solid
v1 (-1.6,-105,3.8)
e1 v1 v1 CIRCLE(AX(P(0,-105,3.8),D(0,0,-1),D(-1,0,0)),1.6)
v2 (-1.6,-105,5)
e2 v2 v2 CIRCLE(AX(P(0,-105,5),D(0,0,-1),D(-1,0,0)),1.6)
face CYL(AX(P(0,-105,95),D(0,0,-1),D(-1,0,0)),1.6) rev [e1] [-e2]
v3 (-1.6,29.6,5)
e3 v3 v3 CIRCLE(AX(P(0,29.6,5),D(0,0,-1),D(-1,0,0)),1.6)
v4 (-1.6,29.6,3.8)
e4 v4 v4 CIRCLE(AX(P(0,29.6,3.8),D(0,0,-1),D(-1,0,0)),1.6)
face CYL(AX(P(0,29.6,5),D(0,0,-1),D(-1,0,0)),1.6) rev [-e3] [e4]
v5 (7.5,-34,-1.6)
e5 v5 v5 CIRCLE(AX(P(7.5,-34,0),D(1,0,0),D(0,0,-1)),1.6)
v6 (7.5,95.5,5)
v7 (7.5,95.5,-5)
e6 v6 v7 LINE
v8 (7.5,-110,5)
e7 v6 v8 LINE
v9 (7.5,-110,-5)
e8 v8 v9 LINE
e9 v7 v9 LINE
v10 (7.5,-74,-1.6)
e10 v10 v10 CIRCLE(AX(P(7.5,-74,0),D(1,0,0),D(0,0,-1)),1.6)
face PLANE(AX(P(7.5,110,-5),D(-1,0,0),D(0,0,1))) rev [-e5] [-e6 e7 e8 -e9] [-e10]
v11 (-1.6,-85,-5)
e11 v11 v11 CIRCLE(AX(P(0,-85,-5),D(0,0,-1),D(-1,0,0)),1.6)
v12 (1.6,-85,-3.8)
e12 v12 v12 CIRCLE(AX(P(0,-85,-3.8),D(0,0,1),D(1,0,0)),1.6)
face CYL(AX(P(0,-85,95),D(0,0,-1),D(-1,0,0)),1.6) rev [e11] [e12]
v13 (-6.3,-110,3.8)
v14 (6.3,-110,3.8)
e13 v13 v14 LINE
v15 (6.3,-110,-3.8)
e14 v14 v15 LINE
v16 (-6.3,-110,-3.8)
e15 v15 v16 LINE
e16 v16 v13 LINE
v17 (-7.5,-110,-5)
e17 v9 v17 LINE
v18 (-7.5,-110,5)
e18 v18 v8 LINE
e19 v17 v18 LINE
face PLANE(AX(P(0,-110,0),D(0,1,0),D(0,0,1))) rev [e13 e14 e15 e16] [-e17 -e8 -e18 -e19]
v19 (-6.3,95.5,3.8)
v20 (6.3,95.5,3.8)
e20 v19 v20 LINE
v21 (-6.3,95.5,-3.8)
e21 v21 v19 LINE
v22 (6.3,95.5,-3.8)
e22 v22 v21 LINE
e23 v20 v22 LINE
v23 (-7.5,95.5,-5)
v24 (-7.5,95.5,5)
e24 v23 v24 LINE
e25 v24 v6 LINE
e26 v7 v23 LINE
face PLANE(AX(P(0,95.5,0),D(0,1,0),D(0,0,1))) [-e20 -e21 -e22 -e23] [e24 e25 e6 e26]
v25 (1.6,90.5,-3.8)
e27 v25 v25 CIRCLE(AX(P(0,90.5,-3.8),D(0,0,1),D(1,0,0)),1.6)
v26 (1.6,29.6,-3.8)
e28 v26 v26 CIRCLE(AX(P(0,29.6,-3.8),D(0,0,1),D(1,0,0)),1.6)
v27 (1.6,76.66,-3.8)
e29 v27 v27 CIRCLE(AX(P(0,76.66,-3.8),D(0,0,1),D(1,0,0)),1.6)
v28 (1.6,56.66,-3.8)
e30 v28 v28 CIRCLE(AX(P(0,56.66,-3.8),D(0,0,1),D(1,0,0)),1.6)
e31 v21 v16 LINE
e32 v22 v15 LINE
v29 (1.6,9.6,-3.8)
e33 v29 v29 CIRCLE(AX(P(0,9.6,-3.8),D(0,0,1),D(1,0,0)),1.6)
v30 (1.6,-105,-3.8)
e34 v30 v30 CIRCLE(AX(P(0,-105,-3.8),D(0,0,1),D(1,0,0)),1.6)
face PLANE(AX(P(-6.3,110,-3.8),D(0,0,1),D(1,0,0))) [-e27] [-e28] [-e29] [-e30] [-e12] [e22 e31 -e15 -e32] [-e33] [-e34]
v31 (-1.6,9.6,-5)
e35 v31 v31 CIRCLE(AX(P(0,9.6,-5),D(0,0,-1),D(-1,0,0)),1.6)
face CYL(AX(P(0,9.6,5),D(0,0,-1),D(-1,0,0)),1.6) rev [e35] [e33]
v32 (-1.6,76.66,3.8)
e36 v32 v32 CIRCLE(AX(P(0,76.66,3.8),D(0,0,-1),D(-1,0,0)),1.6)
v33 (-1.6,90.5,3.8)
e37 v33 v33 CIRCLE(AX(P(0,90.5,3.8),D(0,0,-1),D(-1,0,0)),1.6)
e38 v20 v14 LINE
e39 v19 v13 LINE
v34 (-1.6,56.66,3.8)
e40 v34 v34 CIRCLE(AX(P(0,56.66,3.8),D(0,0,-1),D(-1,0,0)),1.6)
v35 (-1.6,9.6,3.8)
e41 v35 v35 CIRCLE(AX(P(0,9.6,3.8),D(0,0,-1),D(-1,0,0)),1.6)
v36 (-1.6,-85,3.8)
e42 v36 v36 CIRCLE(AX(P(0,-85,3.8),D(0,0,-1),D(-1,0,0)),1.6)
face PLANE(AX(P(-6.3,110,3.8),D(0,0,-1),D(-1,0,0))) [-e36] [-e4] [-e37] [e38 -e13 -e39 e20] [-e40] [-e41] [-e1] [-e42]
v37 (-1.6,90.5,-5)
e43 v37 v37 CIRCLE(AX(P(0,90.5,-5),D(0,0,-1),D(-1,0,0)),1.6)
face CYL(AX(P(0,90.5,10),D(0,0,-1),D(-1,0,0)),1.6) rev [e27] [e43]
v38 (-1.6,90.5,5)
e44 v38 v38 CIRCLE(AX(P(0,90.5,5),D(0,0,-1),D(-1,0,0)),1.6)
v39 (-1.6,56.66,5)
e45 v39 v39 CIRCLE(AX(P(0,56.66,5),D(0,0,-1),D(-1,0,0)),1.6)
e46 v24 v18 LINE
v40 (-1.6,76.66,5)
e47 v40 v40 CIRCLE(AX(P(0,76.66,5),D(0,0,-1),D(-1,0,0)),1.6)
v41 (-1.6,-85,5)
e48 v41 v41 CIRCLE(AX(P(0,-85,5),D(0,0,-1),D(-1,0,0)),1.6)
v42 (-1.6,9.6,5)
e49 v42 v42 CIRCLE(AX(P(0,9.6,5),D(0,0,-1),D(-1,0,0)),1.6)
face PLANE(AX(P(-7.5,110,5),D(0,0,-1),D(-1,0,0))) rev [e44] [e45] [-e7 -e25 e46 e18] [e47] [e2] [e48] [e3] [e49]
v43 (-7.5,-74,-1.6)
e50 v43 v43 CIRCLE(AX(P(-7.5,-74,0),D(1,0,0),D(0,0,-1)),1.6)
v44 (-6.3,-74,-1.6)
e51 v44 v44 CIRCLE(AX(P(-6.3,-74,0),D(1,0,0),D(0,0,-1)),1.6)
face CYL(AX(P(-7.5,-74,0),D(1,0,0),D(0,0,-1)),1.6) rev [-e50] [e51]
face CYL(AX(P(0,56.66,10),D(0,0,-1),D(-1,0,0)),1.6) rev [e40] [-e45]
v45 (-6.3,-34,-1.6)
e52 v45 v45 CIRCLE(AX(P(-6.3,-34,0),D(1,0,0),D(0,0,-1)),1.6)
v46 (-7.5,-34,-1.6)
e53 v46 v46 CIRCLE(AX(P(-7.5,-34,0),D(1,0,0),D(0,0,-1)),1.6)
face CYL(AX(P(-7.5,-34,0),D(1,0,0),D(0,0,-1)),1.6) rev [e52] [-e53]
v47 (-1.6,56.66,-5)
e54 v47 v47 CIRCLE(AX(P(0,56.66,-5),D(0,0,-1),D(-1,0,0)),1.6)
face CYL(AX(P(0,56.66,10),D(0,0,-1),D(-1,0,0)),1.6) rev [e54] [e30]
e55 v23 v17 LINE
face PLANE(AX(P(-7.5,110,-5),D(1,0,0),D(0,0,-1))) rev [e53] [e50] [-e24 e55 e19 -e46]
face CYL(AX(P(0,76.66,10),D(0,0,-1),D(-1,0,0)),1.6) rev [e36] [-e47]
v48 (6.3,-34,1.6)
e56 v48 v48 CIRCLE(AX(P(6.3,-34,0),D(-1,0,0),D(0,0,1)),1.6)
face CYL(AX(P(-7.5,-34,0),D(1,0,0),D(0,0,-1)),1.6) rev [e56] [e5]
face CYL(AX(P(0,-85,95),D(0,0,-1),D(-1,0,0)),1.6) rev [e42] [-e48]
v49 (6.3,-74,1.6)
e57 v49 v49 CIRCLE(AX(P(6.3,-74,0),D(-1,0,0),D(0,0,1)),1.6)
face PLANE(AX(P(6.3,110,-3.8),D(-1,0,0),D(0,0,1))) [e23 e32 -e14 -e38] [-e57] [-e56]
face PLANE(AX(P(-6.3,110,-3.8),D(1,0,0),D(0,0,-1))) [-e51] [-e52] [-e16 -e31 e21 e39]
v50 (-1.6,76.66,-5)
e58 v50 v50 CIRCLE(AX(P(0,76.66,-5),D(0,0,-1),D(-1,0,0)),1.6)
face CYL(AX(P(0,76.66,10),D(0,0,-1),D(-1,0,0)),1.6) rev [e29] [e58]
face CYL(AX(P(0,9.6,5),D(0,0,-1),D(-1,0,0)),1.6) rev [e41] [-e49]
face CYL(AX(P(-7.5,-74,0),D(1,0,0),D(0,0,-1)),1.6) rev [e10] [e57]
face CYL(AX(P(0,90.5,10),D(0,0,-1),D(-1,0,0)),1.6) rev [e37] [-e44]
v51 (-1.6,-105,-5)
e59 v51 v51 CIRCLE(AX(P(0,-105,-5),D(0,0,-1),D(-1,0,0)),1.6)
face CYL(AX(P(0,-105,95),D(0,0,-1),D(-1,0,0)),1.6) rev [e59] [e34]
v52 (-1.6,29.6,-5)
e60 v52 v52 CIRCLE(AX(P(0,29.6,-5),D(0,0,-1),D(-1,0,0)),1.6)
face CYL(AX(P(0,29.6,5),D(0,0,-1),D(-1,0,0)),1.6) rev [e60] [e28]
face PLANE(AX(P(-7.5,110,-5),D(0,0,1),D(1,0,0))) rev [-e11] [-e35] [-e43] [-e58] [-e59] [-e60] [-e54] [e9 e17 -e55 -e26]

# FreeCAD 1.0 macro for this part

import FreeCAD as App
import Part
import Sketcher
from FreeCAD import Vector

doc = App.newDocument("Part")
body = doc.addObject("PartDesign::Body", "Body")

sketch1 = body.newObject("Sketcher::SketchObject", "Sketch")
sketch1.AttachmentSupport = (doc.getObject("XZ_Plane"), [""])
sketch1.MapMode = "FlatFace"
sketch1.addGeometry(Part.LineSegment(Vector(-8, -5, 0), Vector(-8, 5, 0)), False)
sketch1.addGeometry(Part.LineSegment(Vector(-8, 5, 0), Vector(8, 5, 0)), False)
sketch1.addGeometry(Part.LineSegment(Vector(8, 5, 0), Vector(8, -5, 0)), False)
sketch1.addGeometry(Part.LineSegment(Vector(8, -5, 0), Vector(-8, -5, 0)), False)
sketch1.addGeometry(Part.LineSegment(Vector(6, 4, 0), Vector(-6, 4, 0)), False)
sketch1.addGeometry(Part.LineSegment(Vector(-6, 4, 0), Vector(-6, -4, 0)), False)
sketch1.addGeometry(Part.LineSegment(Vector(-6, -4, 0), Vector(6, -4, 0)), False)
sketch1.addGeometry(Part.LineSegment(Vector(6, -4, 0), Vector(6, 4, 0)), False)
sketch1.addConstraint(Sketcher.Constraint("Coincident", 0, 2, 1, 1))
sketch1.addConstraint(Sketcher.Constraint("Coincident", 1, 2, 2, 1))
sketch1.addConstraint(Sketcher.Constraint("Coincident", 2, 2, 3, 1))
sketch1.addConstraint(Sketcher.Constraint("Coincident", 3, 2, 0, 1))
sketch1.addConstraint(Sketcher.Constraint("Coincident", 4, 2, 5, 1))
sketch1.addConstraint(Sketcher.Constraint("Coincident", 5, 2, 6, 1))
sketch1.addConstraint(Sketcher.Constraint("Coincident", 6, 2, 7, 1))
sketch1.addConstraint(Sketcher.Constraint("Coincident", 7, 2, 4, 1))
sketch1.addConstraint(Sketcher.Constraint("Vertical", 0))
sketch1.addConstraint(Sketcher.Constraint("Horizontal", 1))
sketch1.addConstraint(Sketcher.Constraint("Vertical", 2))
sketch1.addConstraint(Sketcher.Constraint("Horizontal", 3))
sketch1.addConstraint(Sketcher.Constraint("Horizontal", 4))
sketch1.addConstraint(Sketcher.Constraint("Vertical", 5))
sketch1.addConstraint(Sketcher.Constraint("Horizontal", 6))
sketch1.addConstraint(Sketcher.Constraint("Vertical", 7))
sketch1.addConstraint(Sketcher.Constraint("Symmetric", 0, 2, 2, 2, -1, 1))
sketch1.addConstraint(Sketcher.Constraint("Symmetric", 4, 2, 6, 2, -1, 1))
sketch1.addConstraint(Sketcher.Constraint("DistanceX", 1, 1, 1, 2, 15.0))
sketch1.addConstraint(Sketcher.Constraint("DistanceY", 0, 1, 0, 2, 10.0))
sketch1.addConstraint(Sketcher.Constraint("DistanceX", 4, 2, 4, 1, 12.6))
sketch1.addConstraint(Sketcher.Constraint("DistanceY", 5, 2, 5, 1, 7.6))
pad1 = body.newObject("PartDesign::Pad", "Pad")
pad1.Profile = sketch1
pad1.Length = 220
pad1.Midplane = True

sketch2 = body.newObject("Sketcher::SketchObject", "Sketch001")
sketch2.AttachmentSupport = (doc.getObject("XY_Plane"), [""])
sketch2.MapMode = "FlatFace"
sketch2.AttachmentOffset = App.Placement(Vector(0, 0, -5), App.Rotation())
sketch2.addGeometry(Part.Circle(Vector(0, -85, 0), Vector(0, 0, 1), 1.6), False)
sketch2.addGeometry(Part.Circle(Vector(0, -105, 0), Vector(0, 0, 1), 1.6), False)
sketch2.addConstraint(Sketcher.Constraint("Equal", 0, 1))
sketch2.addConstraint(Sketcher.Constraint("PointOnObject", 0, 3, -2))
sketch2.addConstraint(Sketcher.Constraint("PointOnObject", 1, 3, -2))
sketch2.addConstraint(Sketcher.Constraint("Diameter", 0, 3.2))
sketch2.addConstraint(Sketcher.Constraint("DistanceY", 0, 3, -1, 1, 85.0))
sketch2.addConstraint(Sketcher.Constraint("DistanceY", 1, 3, -1, 1, 105.0))
pocket1 = body.newObject("PartDesign::Pocket", "Pocket")
pocket1.Profile = sketch2
pocket1.Length = 100
pocket1.Reversed = True

sketch3 = body.newObject("Sketcher::SketchObject", "Sketch002")
sketch3.AttachmentSupport = (doc.getObject("YZ_Plane"), [""])
sketch3.MapMode = "FlatFace"
sketch3.AttachmentOffset = App.Placement(Vector(0, 0, 7.5), App.Rotation())
sketch3.addGeometry(Part.Circle(Vector(-34, 0, 0), Vector(0, 0, 1), 1.6), False)
sketch3.addGeometry(Part.Circle(Vector(-74, 0, 0), Vector(0, 0, 1), 1.6), False)
sketch3.addConstraint(Sketcher.Constraint("Equal", 0, 1))
sketch3.addConstraint(Sketcher.Constraint("PointOnObject", 0, 3, -1))
sketch3.addConstraint(Sketcher.Constraint("PointOnObject", 1, 3, -1))
sketch3.addConstraint(Sketcher.Constraint("Diameter", 0, 3.2))
sketch3.addConstraint(Sketcher.Constraint("DistanceX", 0, 3, -1, 1, 34.0))
sketch3.addConstraint(Sketcher.Constraint("DistanceX", 1, 3, -1, 1, 74.0))
pocket2 = body.newObject("PartDesign::Pocket", "Pocket001")
pocket2.Profile = sketch3
pocket2.Length = 15

sketch4 = body.newObject("Sketcher::SketchObject", "Sketch003")
sketch4.AttachmentSupport = (doc.getObject("XZ_Plane"), [""])
sketch4.MapMode = "FlatFace"
sketch4.AttachmentOffset = App.Placement(Vector(0, 0, -110), App.Rotation())
sketch4.addGeometry(Part.LineSegment(Vector(-8, -5, 0), Vector(-8, 5, 0)), False)
sketch4.addGeometry(Part.LineSegment(Vector(-8, 5, 0), Vector(8, 5, 0)), False)
sketch4.addGeometry(Part.LineSegment(Vector(8, 5, 0), Vector(8, -5, 0)), False)
sketch4.addGeometry(Part.LineSegment(Vector(8, -5, 0), Vector(-8, -5, 0)), False)
sketch4.addConstraint(Sketcher.Constraint("Coincident", 0, 2, 1, 1))
sketch4.addConstraint(Sketcher.Constraint("Coincident", 1, 2, 2, 1))
sketch4.addConstraint(Sketcher.Constraint("Coincident", 2, 2, 3, 1))
sketch4.addConstraint(Sketcher.Constraint("Coincident", 3, 2, 0, 1))
sketch4.addConstraint(Sketcher.Constraint("Vertical", 0))
sketch4.addConstraint(Sketcher.Constraint("Horizontal", 1))
sketch4.addConstraint(Sketcher.Constraint("Vertical", 2))
sketch4.addConstraint(Sketcher.Constraint("Horizontal", 3))
sketch4.addConstraint(Sketcher.Constraint("Symmetric", 0, 2, 2, 2, -1, 1))
sketch4.addConstraint(Sketcher.Constraint("DistanceX", 1, 1, 1, 2, 15.0))
sketch4.addConstraint(Sketcher.Constraint("DistanceY", 0, 1, 0, 2, 10.0))
pocket3 = body.newObject("PartDesign::Pocket", "Pocket002")
pocket3.Profile = sketch4
pocket3.Length = 14.5
pocket3.Reversed = True

sketch5 = body.newObject("Sketcher::SketchObject", "Sketch004")
sketch5.AttachmentSupport = (doc.getObject("XY_Plane"), [""])
sketch5.MapMode = "FlatFace"
sketch5.AttachmentOffset = App.Placement(Vector(0, 0, -5), App.Rotation())
sketch5.addGeometry(Part.Circle(Vector(0, 90.5, 0), Vector(0, 0, 1), 1.6), False)
sketch5.addGeometry(Part.Circle(Vector(0, 76.7, 0), Vector(0, 0, 1), 1.6), False)
sketch5.addGeometry(Part.Circle(Vector(0, 56.7, 0), Vector(0, 0, 1), 1.6), False)
sketch5.addConstraint(Sketcher.Constraint("Equal", 0, 1))
sketch5.addConstraint(Sketcher.Constraint("Equal", 1, 2))
sketch5.addConstraint(Sketcher.Constraint("PointOnObject", 0, 3, -2))
sketch5.addConstraint(Sketcher.Constraint("PointOnObject", 1, 3, -2))
sketch5.addConstraint(Sketcher.Constraint("PointOnObject", 2, 3, -2))
sketch5.addConstraint(Sketcher.Constraint("Diameter", 0, 3.2))
sketch5.addConstraint(Sketcher.Constraint("DistanceY", 2, 3, 1, 3, 20.0))
sketch5.addConstraint(Sketcher.Constraint("DistanceY", -1, 1, 0, 3, 90.5))
sketch5.addConstraint(Sketcher.Constraint("DistanceY", -1, 1, 1, 3, 76.66))
pocket4 = body.newObject("PartDesign::Pocket", "Pocket003")
pocket4.Profile = sketch5
pocket4.Length = 15
pocket4.Reversed = True

sketch6 = body.newObject("Sketcher::SketchObject", "Sketch005")
sketch6.AttachmentSupport = (doc.getObject("XY_Plane"), [""])
sketch6.MapMode = "FlatFace"
sketch6.AttachmentOffset = App.Placement(Vector(0, 0, -5), App.Rotation())
sketch6.addGeometry(Part.Circle(Vector(0, 9.6, 0), Vector(0, 0, 1), 1.6), False)
sketch6.addGeometry(Part.Circle(Vector(0, 29.6, 0), Vector(0, 0, 1), 1.6), False)
sketch6.addConstraint(Sketcher.Constraint("Equal", 0, 1))
sketch6.addConstraint(Sketcher.Constraint("PointOnObject", 0, 3, -2))
sketch6.addConstraint(Sketcher.Constraint("PointOnObject", 1, 3, -2))
sketch6.addConstraint(Sketcher.Constraint("Diameter", 0, 3.2))
sketch6.addConstraint(Sketcher.Constraint("DistanceY", 0, 3, 1, 3, 20.0))
sketch6.addConstraint(Sketcher.Constraint("DistanceY", -1, 1, 0, 3, 9.6))
pocket5 = body.newObject("PartDesign::Pocket", "Pocket004")
pocket5.Profile = sketch6
pocket5.Length = 10
pocket5.Reversed = True

doc.recompute()
